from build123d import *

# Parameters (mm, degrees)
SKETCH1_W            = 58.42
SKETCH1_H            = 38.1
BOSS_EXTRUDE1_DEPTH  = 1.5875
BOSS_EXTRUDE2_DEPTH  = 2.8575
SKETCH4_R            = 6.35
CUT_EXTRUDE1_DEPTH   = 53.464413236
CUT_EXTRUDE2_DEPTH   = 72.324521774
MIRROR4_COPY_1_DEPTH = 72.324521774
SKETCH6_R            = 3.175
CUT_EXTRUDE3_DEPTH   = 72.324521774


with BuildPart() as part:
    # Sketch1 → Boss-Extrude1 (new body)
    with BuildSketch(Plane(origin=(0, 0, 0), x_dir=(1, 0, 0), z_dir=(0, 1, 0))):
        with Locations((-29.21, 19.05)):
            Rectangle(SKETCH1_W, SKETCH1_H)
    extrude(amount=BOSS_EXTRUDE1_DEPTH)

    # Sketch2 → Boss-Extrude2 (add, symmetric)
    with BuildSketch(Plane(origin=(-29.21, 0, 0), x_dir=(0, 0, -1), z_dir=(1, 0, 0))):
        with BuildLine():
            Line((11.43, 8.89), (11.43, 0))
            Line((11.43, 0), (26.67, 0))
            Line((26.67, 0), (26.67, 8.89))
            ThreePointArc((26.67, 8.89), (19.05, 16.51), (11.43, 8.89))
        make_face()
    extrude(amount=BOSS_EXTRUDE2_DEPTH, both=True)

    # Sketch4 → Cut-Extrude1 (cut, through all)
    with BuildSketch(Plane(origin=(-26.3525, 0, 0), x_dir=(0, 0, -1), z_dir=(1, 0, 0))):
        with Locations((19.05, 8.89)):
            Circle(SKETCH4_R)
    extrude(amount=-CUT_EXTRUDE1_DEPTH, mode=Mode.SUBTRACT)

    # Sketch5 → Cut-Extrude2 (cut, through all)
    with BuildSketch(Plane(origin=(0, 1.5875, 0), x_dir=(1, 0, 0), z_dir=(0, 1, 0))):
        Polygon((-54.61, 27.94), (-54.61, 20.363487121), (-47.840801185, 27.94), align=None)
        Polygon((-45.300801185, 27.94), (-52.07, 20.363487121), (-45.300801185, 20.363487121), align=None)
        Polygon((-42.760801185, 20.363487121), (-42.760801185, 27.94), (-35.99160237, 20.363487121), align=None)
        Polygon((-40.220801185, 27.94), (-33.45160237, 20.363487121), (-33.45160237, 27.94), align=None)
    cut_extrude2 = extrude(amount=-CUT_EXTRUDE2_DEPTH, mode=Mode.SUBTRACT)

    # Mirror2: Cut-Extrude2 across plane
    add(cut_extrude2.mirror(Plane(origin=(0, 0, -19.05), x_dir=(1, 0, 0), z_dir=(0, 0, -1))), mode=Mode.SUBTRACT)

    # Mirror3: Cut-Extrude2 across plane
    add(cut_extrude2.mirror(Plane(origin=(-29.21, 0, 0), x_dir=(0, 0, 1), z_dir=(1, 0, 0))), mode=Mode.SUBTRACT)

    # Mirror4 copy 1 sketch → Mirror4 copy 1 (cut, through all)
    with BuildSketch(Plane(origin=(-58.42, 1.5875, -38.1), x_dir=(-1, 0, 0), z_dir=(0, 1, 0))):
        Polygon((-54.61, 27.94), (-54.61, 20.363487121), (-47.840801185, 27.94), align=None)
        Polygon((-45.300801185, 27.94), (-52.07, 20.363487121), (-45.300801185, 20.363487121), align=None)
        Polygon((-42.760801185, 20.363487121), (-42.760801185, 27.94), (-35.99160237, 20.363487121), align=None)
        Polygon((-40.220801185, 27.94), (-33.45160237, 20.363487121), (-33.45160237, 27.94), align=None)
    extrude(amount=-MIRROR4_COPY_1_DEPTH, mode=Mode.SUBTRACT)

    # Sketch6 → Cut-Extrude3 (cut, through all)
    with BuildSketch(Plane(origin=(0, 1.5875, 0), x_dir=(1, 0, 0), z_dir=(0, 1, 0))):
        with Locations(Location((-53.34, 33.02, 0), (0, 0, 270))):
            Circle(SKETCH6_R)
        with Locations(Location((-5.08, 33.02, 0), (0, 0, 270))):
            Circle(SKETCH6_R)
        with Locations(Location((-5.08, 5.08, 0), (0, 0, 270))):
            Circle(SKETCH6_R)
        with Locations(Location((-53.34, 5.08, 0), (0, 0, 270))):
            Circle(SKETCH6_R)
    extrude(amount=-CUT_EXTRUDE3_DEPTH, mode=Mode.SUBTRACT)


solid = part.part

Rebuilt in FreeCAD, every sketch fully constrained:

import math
import FreeCAD as App
import Part
import Sketcher

V = App.Vector
Q = App.Units.Quantity


def add_polygon(sketch, points):
    """Adds a closed chain of lines whose ends are joined by coincident constraints."""
    first, n = sketch.GeometryCount, len(points)
    for a, b in zip(points, points[1:] + points[:1]):
        sketch.addGeometry(Part.LineSegment(App.Vector(*a, 0), App.Vector(*b, 0)), False)
    for i in range(n):
        sketch.addConstraint(Sketcher.Constraint("Coincident", first + i, 2, first + (i + 1) % n, 1))

doc = App.newDocument("Part")
body = doc.addObject("PartDesign::Body", "Body")

# Sketch on XZ plane
sketch1 = body.newObject("Sketcher::SketchObject", "Sketch")
sketch1.AttachmentSupport = (doc.getObject("XZ_Plane"), [""])
sketch1.MapMode = "FlatFace"
add_polygon(sketch1, [(-58, -38), (-58, 0), (0, 0), (0, -38)])  # lines 0-3
sketch1.addConstraint([
    Sketcher.Constraint("Vertical", 0),
    Sketcher.Constraint("Horizontal", 1),
    Sketcher.Constraint("Vertical", 2),
    Sketcher.Constraint("Horizontal", 3),
    Sketcher.Constraint("Coincident", 1, 2, -1, 1),
    Sketcher.Constraint("DistanceX", 1, 1, 1, 2, Q("2.3 in")),
    Sketcher.Constraint("DistanceY", 0, 1, 0, 2, Q("1.5 in")),
])
pad1 = body.newObject("PartDesign::Pad", "Pad")
pad1.Profile = sketch1
pad1.Length = Q("0.0625 in")
pad1.Reversed = True

# Sketch on YZ plane
sketch2 = body.newObject("Sketcher::SketchObject", "Sketch001")
sketch2.AttachmentSupport = (doc.getObject("YZ_Plane"), [""])
sketch2.MapMode = "FlatFace"
sketch2.AttachmentOffset = App.Placement(V(0, 0, -1.15 * 25.4), App.Rotation())
sketch2.addGeometry([
    Part.LineSegment(V(9, -11, 0), V(0, -11, 0)),
    Part.LineSegment(V(0, -11, 0), V(0, -27, 0)),
    Part.LineSegment(V(0, -27, 0), V(9, -27, 0)),
    Part.ArcOfCircle(Part.Circle(V(9, -19, 0), V(0, 0, 1), 8), math.radians(-90), math.radians(90)),
], False)
sketch2.addConstraint([
    Sketcher.Constraint("Coincident", 0, 2, 1, 1),
    Sketcher.Constraint("Coincident", 1, 2, 2, 1),
    Sketcher.Constraint("Tangent", 2, 2, 3, 1),
    Sketcher.Constraint("Tangent", 3, 2, 0, 1),
    Sketcher.Constraint("Horizontal", 0),
    Sketcher.Constraint("Vertical", 1),
    Sketcher.Constraint("Horizontal", 2),
    Sketcher.Constraint("PointOnObject", 0, 2, -2),
    Sketcher.Constraint("Radius", 3, Q("0.3 in")),
    Sketcher.Constraint("DistanceX", 0, 2, 0, 1, Q("0.35 in")),
    Sketcher.Constraint("DistanceY", 3, 3, -1, 1, Q("0.75 in")),
])
pad2 = body.newObject("PartDesign::Pad", "Pad001")
pad2.Profile = sketch2
pad2.Length = Q("0.225 in")
pad2.Midplane = True

# Sketch on YZ plane
sketch3 = body.newObject("Sketcher::SketchObject", "Sketch002")
sketch3.AttachmentSupport = (doc.getObject("YZ_Plane"), [""])
sketch3.MapMode = "FlatFace"
sketch3.AttachmentOffset = App.Placement(V(0, 0, -1.0375 * 25.4), App.Rotation())
sketch3.addGeometry(Part.Circle(V(9, -19, 0), V(0, 0, 1), 6), False)
sketch3.addConstraint([
    Sketcher.Constraint("Diameter", 0, Q("0.5 in")),
    Sketcher.Constraint("DistanceX", -1, 1, 0, 3, Q("0.35 in")),
    Sketcher.Constraint("DistanceY", 0, 3, -1, 1, Q("0.75 in")),
])
pocket1 = body.newObject("PartDesign::Pocket", "Pocket")
pocket1.Profile = sketch3
pocket1.Type = "ThroughAll"

# Sketch on XZ plane
sketch4 = body.newObject("Sketcher::SketchObject", "Sketch003")
sketch4.AttachmentSupport = (doc.getObject("XZ_Plane"), [""])
sketch4.MapMode = "FlatFace"
sketch4.AttachmentOffset = App.Placement(V(0, 0, -0.0625 * 25.4), App.Rotation())
add_polygon(sketch4, [(-55, -28), (-55, -20), (-48, -28)])  # lines 0-2
add_polygon(sketch4, [(-45, -28), (-52, -20), (-45, -20)])  # lines 3-5
add_polygon(sketch4, [(-43, -28), (-43, -20), (-36, -20)])  # lines 6-8
add_polygon(sketch4, [(-40, -28), (-33, -20), (-33, -28)])  # lines 9-11
sketch4.addConstraint([
    Sketcher.Constraint("Vertical", 0),
    Sketcher.Constraint("Horizontal", 2),
    Sketcher.Constraint("Horizontal", 4),
    Sketcher.Constraint("Vertical", 5),
    Sketcher.Constraint("Vertical", 6),
    Sketcher.Constraint("Horizontal", 7),
    Sketcher.Constraint("Vertical", 10),
    Sketcher.Constraint("Horizontal", 11),
    Sketcher.Constraint("Parallel", 1, 3),
    Sketcher.Constraint("Parallel", 8, 9),
    Sketcher.Constraint("Horizontal", 0, 2, 3, 2),
    Sketcher.Constraint("Horizontal", 2, 2, 5, 2),
    Sketcher.Constraint("Horizontal", 4, 2, 6, 2),
    Sketcher.Constraint("Horizontal", 5, 2, 8, 2),
    Sketcher.Constraint("Horizontal", 7, 2, 9, 2),
    Sketcher.Constraint("Horizontal", 8, 2, 10, 2),
    Sketcher.Constraint("Equal", 4, 7),
    Sketcher.Constraint("Distance", 1, Q("0.4 in")),
    Sketcher.Constraint("DistanceY", 1, 2, -1, 1, Q("1.1 in")),
    Sketcher.Constraint("DistanceX", 0, 2, 3, 2, Q("0.1 in")),
    Sketcher.Constraint("DistanceX", 4, 2, 6, 2, Q("0.1 in")),
    Sketcher.Constraint("DistanceX", 7, 2, 9, 2, Q("0.1 in")),
    Sketcher.Constraint("DistanceX", 0, 2, -1, 1, Q("2.15 in")),
    Sketcher.Constraint("DistanceX", 2, 2, 2, 1, 6.769199),
])
pocket2 = body.newObject("PartDesign::Pocket", "Pocket001")
pocket2.Profile = sketch4
pocket2.Type = "ThroughAll"
pocket2.Reversed = True
doc.recompute()

datumplane = body.newObject("PartDesign::Plane", "DatumPlane")
datumplane.AttachmentSupport = (doc.getObject("XY_Plane"), [""])
datumplane.MapMode = "FlatFace"
datumplane.AttachmentOffset = App.Placement(V(0, 0, -0.75 * 25.4), App.Rotation())
mirrored = body.newObject("PartDesign::Mirrored", "Mirrored")
mirrored.Originals = [pocket2]
mirrored.MirrorPlane = (datumplane, [""])
body.Tip = mirrored
doc.recompute()

datumplane2 = body.newObject("PartDesign::Plane", "DatumPlane001")
datumplane2.AttachmentSupport = (doc.getObject("YZ_Plane"), [""])
datumplane2.MapMode = "FlatFace"
datumplane2.AttachmentOffset = App.Placement(V(0, 0, -1.15 * 25.4), App.Rotation())
mirrored2 = body.newObject("PartDesign::Mirrored", "Mirrored001")
mirrored2.Originals = [pocket2]
mirrored2.MirrorPlane = (datumplane2, [""])
body.Tip = mirrored2

# Sketch on XZ plane
sketch5 = body.newObject("Sketcher::SketchObject", "Sketch004")
sketch5.AttachmentSupport = (doc.getObject("XZ_Plane"), [""])
sketch5.MapMode = "FlatFace"
sketch5.AttachmentOffset = App.Placement(V(0, 0, -0.0625 * 25.4), App.Rotation())
add_polygon(sketch5, [(-4, -10), (-4, -18), (-11, -10)])  # lines 0-2
add_polygon(sketch5, [(-13, -10), (-6, -18), (-13, -18)])  # lines 3-5
add_polygon(sketch5, [(-16, -10), (-16, -18), (-22, -18)])  # lines 6-8
add_polygon(sketch5, [(-18, -10), (-25, -18), (-25, -10)])  # lines 9-11
sketch5.addConstraint([
    Sketcher.Constraint("Vertical", 0),
    Sketcher.Constraint("Horizontal", 2),
    Sketcher.Constraint("Horizontal", 4),
    Sketcher.Constraint("Vertical", 5),
    Sketcher.Constraint("Vertical", 6),
    Sketcher.Constraint("Horizontal", 7),
    Sketcher.Constraint("Vertical", 10),
    Sketcher.Constraint("Horizontal", 11),
    Sketcher.Constraint("Parallel", 1, 3),
    Sketcher.Constraint("Parallel", 8, 9),
    Sketcher.Constraint("Horizontal", 0, 2, 3, 2),
    Sketcher.Constraint("Horizontal", 2, 2, 5, 2),
    Sketcher.Constraint("Horizontal", 4, 2, 6, 2),
    Sketcher.Constraint("Horizontal", 5, 2, 8, 2),
    Sketcher.Constraint("Horizontal", 7, 2, 9, 2),
    Sketcher.Constraint("Horizontal", 8, 2, 10, 2),
    Sketcher.Constraint("Equal", 4, 7),
    Sketcher.Constraint("Distance", 1, Q("0.4 in")),
    Sketcher.Constraint("DistanceY", 1, 2, -1, 1, Q("0.4 in")),
    Sketcher.Constraint("DistanceX", 3, 2, 0, 2, Q("0.1 in")),
    Sketcher.Constraint("DistanceX", 6, 2, 4, 2, Q("0.1 in")),
    Sketcher.Constraint("DistanceX", 9, 2, 7, 2, Q("0.1 in")),
    Sketcher.Constraint("DistanceX", 0, 2, -1, 1, Q("0.15 in")),
    Sketcher.Constraint("DistanceX", 2, 1, 2, 2, 6.769199),
])
pocket3 = body.newObject("PartDesign::Pocket", "Pocket002")
pocket3.Profile = sketch5
pocket3.Type = "ThroughAll"
pocket3.Reversed = True

# Sketch on XZ plane
sketch6 = body.newObject("Sketcher::SketchObject", "Sketch005")
sketch6.AttachmentSupport = (doc.getObject("XZ_Plane"), [""])
sketch6.MapMode = "FlatFace"
sketch6.AttachmentOffset = App.Placement(V(0, 0, -0.0625 * 25.4), App.Rotation())
sketch6.addGeometry([
    Part.Circle(V(-53.3, -33, 0), V(0, 0, 1), 3.2),
    Part.Circle(V(-5.1, -33, 0), V(0, 0, 1), 3.2),
    Part.Circle(V(-5.1, -5.1, 0), V(0, 0, 1), 3.2),
    Part.Circle(V(-53.3, -5.1, 0), V(0, 0, 1), 3.2),
], False)
sketch6.addConstraint([
    Sketcher.Constraint("Equal", 0, 1),
    Sketcher.Constraint("Equal", 1, 2),
    Sketcher.Constraint("Equal", 2, 3),
    Sketcher.Constraint("Horizontal", 0, 3, 1, 3),
    Sketcher.Constraint("Horizontal", 2, 3, 3, 3),
    Sketcher.Constraint("Vertical", 1, 3, 2, 3),
    Sketcher.Constraint("Vertical", 0, 3, 3, 3),
    Sketcher.Constraint("Diameter", 0, Q("0.25 in")),
    Sketcher.Constraint("DistanceX", 0, 3, -1, 1, Q("2.1 in")),
    Sketcher.Constraint("DistanceY", 0, 3, -1, 1, Q("1.3 in")),
    Sketcher.Constraint("DistanceX", 1, 3, -1, 1, Q("0.2 in")),
    Sketcher.Constraint("DistanceY", 2, 3, -1, 1, Q("0.2 in")),
])
pocket4 = body.newObject("PartDesign::Pocket", "Pocket003")
pocket4.Profile = sketch6
pocket4.Type = "ThroughAll"
pocket4.Reversed = True

doc.recompute()
